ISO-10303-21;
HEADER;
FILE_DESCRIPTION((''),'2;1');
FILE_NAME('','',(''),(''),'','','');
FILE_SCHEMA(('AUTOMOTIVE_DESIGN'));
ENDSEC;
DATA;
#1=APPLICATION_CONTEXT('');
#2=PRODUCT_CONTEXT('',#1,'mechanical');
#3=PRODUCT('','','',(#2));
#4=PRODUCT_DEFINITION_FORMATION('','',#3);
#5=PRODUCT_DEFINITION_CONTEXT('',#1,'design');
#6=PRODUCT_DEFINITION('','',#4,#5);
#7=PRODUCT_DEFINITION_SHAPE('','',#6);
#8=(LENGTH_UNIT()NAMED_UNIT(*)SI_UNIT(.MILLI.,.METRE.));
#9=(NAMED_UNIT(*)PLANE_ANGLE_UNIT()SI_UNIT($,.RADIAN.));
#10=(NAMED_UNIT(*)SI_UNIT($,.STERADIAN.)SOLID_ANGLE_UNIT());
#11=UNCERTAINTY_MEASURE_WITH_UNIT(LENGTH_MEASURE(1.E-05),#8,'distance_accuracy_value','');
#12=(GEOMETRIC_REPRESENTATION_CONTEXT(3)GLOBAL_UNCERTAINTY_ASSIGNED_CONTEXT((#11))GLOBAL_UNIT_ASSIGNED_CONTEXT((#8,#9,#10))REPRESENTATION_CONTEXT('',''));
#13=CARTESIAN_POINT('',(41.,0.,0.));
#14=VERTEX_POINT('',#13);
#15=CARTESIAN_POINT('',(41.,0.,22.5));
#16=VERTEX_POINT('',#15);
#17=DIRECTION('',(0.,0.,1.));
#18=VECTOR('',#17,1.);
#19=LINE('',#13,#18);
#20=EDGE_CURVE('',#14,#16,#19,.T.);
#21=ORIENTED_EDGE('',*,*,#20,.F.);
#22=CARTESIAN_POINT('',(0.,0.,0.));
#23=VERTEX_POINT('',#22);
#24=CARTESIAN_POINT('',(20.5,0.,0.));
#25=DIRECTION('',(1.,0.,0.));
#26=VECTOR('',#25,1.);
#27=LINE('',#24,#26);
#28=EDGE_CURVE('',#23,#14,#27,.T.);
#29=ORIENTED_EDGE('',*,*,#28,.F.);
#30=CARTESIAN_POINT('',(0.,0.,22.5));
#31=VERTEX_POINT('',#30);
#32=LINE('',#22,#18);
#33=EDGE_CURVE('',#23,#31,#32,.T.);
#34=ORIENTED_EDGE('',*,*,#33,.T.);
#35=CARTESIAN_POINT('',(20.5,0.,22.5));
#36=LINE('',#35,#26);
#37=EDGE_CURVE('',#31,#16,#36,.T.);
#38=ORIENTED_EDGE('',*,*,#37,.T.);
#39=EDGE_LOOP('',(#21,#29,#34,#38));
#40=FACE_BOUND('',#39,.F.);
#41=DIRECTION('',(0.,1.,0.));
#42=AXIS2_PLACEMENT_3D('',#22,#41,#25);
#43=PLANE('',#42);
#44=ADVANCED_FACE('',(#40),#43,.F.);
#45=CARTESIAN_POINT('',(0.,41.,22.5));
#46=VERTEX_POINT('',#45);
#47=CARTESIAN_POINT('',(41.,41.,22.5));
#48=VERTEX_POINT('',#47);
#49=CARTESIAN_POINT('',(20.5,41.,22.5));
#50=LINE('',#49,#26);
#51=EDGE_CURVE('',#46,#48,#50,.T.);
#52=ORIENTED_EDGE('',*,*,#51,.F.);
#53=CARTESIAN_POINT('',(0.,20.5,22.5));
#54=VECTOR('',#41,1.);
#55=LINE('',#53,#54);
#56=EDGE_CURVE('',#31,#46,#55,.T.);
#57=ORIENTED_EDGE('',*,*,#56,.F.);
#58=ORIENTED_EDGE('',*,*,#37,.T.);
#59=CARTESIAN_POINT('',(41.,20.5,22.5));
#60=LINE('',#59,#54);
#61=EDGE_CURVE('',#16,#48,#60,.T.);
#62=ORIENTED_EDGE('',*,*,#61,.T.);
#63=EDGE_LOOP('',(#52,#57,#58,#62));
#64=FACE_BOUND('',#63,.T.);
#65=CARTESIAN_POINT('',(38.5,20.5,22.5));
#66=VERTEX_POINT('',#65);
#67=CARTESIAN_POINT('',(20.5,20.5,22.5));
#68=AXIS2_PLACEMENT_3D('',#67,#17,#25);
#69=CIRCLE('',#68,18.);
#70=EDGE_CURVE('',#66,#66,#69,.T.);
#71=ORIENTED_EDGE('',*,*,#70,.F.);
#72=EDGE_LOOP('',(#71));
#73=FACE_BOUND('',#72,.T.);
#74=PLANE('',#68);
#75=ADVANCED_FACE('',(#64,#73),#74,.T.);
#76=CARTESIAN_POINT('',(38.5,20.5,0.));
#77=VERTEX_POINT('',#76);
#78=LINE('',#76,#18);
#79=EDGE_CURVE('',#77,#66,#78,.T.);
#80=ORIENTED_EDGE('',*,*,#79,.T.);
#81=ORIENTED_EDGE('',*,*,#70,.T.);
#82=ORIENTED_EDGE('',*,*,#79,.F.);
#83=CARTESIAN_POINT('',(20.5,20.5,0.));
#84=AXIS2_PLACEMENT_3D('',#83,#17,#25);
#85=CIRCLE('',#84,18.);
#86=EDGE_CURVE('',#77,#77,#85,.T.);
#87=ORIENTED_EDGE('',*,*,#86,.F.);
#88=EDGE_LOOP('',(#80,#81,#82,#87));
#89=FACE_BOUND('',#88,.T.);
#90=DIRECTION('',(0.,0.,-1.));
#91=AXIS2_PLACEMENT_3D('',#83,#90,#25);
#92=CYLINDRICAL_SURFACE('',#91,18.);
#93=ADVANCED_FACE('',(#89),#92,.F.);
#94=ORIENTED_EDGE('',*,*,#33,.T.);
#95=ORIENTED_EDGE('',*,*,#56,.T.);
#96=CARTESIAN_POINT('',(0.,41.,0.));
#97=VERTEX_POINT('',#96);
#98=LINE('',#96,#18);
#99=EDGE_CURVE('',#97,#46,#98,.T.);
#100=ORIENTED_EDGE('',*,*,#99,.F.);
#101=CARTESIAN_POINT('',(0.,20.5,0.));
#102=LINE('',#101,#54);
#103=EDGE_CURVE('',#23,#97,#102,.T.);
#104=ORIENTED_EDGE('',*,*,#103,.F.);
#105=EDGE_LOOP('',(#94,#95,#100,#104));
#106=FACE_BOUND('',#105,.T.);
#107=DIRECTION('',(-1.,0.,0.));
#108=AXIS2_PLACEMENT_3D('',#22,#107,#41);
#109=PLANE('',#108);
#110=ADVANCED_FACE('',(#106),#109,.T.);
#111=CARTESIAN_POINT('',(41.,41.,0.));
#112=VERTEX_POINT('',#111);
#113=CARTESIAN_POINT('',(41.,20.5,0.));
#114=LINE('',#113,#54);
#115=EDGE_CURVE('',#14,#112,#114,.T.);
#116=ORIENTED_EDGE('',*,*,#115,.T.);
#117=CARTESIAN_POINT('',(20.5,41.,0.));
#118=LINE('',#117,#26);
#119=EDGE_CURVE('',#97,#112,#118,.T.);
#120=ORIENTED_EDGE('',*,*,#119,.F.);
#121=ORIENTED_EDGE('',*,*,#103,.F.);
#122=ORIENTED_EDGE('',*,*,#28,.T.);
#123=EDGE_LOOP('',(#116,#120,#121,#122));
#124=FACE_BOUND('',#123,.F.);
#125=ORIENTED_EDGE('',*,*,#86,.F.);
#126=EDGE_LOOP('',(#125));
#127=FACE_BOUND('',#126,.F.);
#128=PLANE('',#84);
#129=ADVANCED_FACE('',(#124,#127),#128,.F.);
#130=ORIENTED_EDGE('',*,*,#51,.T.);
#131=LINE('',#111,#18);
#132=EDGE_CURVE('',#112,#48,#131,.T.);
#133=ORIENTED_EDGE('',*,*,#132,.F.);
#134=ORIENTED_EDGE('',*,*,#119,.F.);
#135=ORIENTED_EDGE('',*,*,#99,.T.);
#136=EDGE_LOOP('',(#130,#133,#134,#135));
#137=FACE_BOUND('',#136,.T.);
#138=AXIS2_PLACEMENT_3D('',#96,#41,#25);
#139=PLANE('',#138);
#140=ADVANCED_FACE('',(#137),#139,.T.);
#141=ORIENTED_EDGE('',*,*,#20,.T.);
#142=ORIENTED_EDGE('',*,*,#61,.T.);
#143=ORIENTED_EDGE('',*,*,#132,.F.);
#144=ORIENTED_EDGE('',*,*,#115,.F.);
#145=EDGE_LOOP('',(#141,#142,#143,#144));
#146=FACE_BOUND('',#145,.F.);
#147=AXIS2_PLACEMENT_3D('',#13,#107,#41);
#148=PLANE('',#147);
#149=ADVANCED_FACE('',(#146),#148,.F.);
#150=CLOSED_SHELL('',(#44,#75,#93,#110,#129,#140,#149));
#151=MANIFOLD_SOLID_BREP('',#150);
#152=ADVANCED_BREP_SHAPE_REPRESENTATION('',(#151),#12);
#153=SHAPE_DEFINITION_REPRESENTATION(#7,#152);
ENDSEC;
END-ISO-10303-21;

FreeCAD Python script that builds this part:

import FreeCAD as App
import Part
import Sketcher
from FreeCAD import Vector
Q = App.Units.Quantity


def add_polygon(sketch, points):
    """Adds a closed chain of lines whose ends are joined by coincident constraints."""
    first, n = sketch.GeometryCount, len(points)
    for a, b in zip(points, points[1:] + points[:1]):
        sketch.addGeometry(Part.LineSegment(App.Vector(*a, 0), App.Vector(*b, 0)), False)
    for i in range(n):
        sketch.addConstraint(Sketcher.Constraint("Coincident", first + i, 2, first + (i + 1) % n, 1))

doc = App.newDocument("Part")
body = doc.addObject("PartDesign::Body", "Body")

# Sketch on XY plane
sketch1 = body.newObject("Sketcher::SketchObject", "Sketch")
sketch1.AttachmentSupport = (doc.getObject("XY_Plane"), [""])
sketch1.MapMode = "FlatFace"
sketch1.addGeometry(Part.Circle(Vector(20.5, 20.5, 0), Vector(0, 0, 1), 18), False)
sketch1.addConstraint([
    Sketcher.Constraint("Diameter", 0, Q("36 mm")),
    Sketcher.Constraint("DistanceX", -1, 1, 0, 3, Q("20.5 mm")),
    Sketcher.Constraint("DistanceY", -1, 1, 0, 3, Q("20.5 mm")),
])
pad1 = body.newObject("PartDesign::Pad", "Pad")
pad1.Profile = sketch1
pad1.Length = 22.5
body2 = doc.addObject("PartDesign::Body", "Body001")

# Sketch on XY plane
sketch2 = body2.newObject("Sketcher::SketchObject", "Sketch001")
sketch2.AttachmentSupport = (doc.getObject("XY_Plane001"), [""])
sketch2.MapMode = "FlatFace"
add_polygon(sketch2, [(0, 41), (0, 0), (41, 0), (41, 41)])  # lines 0-3
sketch2.addConstraint([
    Sketcher.Constraint("Vertical", 0),
    Sketcher.Constraint("Horizontal", 1),
    Sketcher.Constraint("Vertical", 2),
    Sketcher.Constraint("Horizontal", 3),
    Sketcher.Constraint("Coincident", 0, 2, -1, 1),
    Sketcher.Constraint("Equal", 3, 0),
    Sketcher.Constraint("DistanceX", 1, 1, 1, 2, Q("41 mm")),
])
pad2 = body2.newObject("PartDesign::Pad", "Pad001")
pad2.Profile = sketch2
pad2.Length = 22.5
doc.recompute()

boolean = body2.newObject("PartDesign::Boolean", "Boolean")
boolean.Type = "Cut"
boolean.addObjects([body])

doc.recompute()
